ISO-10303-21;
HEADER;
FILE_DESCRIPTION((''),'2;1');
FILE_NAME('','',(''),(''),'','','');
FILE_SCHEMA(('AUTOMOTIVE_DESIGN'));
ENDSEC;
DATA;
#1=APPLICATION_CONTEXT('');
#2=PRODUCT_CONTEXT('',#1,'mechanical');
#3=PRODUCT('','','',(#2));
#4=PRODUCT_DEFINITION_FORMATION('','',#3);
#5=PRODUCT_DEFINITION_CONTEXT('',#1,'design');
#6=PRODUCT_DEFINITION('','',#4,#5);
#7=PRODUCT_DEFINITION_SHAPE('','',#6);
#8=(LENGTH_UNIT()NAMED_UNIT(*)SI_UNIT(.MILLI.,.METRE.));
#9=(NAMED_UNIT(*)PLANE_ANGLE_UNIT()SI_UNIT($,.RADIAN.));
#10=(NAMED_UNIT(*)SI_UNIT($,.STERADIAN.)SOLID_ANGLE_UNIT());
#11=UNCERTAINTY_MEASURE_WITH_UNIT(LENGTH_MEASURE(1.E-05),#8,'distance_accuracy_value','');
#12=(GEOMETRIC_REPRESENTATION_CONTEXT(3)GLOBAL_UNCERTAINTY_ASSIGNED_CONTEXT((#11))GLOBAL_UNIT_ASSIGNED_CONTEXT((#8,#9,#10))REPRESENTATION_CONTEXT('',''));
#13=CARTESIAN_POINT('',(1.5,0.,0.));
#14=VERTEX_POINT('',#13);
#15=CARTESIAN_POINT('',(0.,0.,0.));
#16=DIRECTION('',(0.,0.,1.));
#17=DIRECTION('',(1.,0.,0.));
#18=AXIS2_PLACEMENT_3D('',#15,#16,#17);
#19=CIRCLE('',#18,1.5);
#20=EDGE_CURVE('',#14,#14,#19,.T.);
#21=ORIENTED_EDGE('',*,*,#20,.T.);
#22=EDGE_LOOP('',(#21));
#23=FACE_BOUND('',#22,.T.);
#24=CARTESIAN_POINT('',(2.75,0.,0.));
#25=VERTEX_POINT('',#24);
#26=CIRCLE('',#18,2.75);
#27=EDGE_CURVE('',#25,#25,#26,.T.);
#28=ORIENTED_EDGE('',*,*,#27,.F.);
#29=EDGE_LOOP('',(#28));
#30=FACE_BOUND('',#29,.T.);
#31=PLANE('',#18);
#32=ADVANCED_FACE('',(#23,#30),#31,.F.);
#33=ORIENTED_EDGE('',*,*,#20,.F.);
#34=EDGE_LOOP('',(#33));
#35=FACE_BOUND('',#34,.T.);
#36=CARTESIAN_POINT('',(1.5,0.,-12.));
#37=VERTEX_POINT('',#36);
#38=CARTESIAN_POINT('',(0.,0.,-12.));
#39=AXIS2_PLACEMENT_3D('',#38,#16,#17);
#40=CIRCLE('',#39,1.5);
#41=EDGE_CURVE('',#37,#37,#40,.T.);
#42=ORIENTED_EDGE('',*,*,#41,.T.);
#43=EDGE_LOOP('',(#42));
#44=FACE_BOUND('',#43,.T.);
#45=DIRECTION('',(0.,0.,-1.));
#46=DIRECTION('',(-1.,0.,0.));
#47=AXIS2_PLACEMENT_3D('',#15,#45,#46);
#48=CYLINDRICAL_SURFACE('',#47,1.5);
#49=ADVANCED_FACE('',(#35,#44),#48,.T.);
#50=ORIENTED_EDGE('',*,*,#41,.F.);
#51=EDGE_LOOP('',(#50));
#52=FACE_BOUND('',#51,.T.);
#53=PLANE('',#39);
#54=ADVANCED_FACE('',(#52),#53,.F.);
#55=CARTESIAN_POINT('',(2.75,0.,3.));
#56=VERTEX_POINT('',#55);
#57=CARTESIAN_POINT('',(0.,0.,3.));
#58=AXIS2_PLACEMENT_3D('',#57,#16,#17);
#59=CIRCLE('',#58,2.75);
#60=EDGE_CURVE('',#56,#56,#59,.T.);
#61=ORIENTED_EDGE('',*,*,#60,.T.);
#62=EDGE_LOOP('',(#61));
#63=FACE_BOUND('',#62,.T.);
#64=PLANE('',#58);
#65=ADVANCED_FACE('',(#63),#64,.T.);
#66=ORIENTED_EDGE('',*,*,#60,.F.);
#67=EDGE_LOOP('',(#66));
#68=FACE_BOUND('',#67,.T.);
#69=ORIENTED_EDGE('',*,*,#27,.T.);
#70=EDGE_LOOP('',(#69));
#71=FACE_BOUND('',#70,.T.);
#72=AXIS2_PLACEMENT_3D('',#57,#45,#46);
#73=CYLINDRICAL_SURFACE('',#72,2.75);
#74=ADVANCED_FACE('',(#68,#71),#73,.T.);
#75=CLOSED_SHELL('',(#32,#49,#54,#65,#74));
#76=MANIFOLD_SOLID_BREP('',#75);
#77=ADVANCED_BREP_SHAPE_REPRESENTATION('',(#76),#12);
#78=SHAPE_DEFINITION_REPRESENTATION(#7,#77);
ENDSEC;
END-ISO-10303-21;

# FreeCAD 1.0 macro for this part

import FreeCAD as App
import Part
import Sketcher
from FreeCAD import Vector
Q = App.Units.Quantity

doc = App.newDocument("Part")
params = doc.addObject("Spreadsheet::Sheet", "Params")
for row, (alias, value) in enumerate([
    ("sketch1_diameter", "3 mm"),
    ("pad1_length", "12 mm"),
    ("sketch2_diameter", "5.5 mm"),
    ("pad2_length", "3 mm"),
], start=1):
    params.set(f"A{row}", alias)
    params.set(f"B{row}", "=" + value)
    params.setAlias(f"B{row}", alias)

body = doc.addObject("PartDesign::Body", "Body")

sketch1 = body.newObject("Sketcher::SketchObject", "Sketch")
sketch1.AttachmentSupport = (doc.getObject("XY_Plane"), [""])
sketch1.MapMode = "FlatFace"
sketch1.AttachmentOffset = App.Placement(Vector(0, 0, -12), App.Rotation())
sketch1.addGeometry(Part.Circle(Vector(0, 0, 0), Vector(0, 0, 1), 1.5), False)
sketch1.addConstraint([
    Sketcher.Constraint("Coincident", 0, 3, -1, 1),
    Sketcher.Constraint("Diameter", 0, Q("3 mm")),
])
sketch1.setExpression("Constraints[1]", "Params.sketch1_diameter")
pad1 = body.newObject("PartDesign::Pad", "Pad")
pad1.Profile = sketch1
pad1.setExpression("Length", "Params.pad1_length")

sketch2 = body.newObject("Sketcher::SketchObject", "Sketch001")
sketch2.AttachmentSupport = (doc.getObject("XY_Plane"), [""])
sketch2.MapMode = "FlatFace"
sketch2.addGeometry(Part.Circle(Vector(0, 0, 0), Vector(0, 0, 1), 2.8), False)
sketch2.addConstraint([
    Sketcher.Constraint("Coincident", 0, 3, -1, 1),
    Sketcher.Constraint("Diameter", 0, Q("5.5 mm")),
])
sketch2.setExpression("Constraints[1]", "Params.sketch2_diameter")
pad2 = body.newObject("PartDesign::Pad", "Pad001")
pad2.Profile = sketch2
pad2.setExpression("Length", "Params.pad2_length")

doc.recompute()
